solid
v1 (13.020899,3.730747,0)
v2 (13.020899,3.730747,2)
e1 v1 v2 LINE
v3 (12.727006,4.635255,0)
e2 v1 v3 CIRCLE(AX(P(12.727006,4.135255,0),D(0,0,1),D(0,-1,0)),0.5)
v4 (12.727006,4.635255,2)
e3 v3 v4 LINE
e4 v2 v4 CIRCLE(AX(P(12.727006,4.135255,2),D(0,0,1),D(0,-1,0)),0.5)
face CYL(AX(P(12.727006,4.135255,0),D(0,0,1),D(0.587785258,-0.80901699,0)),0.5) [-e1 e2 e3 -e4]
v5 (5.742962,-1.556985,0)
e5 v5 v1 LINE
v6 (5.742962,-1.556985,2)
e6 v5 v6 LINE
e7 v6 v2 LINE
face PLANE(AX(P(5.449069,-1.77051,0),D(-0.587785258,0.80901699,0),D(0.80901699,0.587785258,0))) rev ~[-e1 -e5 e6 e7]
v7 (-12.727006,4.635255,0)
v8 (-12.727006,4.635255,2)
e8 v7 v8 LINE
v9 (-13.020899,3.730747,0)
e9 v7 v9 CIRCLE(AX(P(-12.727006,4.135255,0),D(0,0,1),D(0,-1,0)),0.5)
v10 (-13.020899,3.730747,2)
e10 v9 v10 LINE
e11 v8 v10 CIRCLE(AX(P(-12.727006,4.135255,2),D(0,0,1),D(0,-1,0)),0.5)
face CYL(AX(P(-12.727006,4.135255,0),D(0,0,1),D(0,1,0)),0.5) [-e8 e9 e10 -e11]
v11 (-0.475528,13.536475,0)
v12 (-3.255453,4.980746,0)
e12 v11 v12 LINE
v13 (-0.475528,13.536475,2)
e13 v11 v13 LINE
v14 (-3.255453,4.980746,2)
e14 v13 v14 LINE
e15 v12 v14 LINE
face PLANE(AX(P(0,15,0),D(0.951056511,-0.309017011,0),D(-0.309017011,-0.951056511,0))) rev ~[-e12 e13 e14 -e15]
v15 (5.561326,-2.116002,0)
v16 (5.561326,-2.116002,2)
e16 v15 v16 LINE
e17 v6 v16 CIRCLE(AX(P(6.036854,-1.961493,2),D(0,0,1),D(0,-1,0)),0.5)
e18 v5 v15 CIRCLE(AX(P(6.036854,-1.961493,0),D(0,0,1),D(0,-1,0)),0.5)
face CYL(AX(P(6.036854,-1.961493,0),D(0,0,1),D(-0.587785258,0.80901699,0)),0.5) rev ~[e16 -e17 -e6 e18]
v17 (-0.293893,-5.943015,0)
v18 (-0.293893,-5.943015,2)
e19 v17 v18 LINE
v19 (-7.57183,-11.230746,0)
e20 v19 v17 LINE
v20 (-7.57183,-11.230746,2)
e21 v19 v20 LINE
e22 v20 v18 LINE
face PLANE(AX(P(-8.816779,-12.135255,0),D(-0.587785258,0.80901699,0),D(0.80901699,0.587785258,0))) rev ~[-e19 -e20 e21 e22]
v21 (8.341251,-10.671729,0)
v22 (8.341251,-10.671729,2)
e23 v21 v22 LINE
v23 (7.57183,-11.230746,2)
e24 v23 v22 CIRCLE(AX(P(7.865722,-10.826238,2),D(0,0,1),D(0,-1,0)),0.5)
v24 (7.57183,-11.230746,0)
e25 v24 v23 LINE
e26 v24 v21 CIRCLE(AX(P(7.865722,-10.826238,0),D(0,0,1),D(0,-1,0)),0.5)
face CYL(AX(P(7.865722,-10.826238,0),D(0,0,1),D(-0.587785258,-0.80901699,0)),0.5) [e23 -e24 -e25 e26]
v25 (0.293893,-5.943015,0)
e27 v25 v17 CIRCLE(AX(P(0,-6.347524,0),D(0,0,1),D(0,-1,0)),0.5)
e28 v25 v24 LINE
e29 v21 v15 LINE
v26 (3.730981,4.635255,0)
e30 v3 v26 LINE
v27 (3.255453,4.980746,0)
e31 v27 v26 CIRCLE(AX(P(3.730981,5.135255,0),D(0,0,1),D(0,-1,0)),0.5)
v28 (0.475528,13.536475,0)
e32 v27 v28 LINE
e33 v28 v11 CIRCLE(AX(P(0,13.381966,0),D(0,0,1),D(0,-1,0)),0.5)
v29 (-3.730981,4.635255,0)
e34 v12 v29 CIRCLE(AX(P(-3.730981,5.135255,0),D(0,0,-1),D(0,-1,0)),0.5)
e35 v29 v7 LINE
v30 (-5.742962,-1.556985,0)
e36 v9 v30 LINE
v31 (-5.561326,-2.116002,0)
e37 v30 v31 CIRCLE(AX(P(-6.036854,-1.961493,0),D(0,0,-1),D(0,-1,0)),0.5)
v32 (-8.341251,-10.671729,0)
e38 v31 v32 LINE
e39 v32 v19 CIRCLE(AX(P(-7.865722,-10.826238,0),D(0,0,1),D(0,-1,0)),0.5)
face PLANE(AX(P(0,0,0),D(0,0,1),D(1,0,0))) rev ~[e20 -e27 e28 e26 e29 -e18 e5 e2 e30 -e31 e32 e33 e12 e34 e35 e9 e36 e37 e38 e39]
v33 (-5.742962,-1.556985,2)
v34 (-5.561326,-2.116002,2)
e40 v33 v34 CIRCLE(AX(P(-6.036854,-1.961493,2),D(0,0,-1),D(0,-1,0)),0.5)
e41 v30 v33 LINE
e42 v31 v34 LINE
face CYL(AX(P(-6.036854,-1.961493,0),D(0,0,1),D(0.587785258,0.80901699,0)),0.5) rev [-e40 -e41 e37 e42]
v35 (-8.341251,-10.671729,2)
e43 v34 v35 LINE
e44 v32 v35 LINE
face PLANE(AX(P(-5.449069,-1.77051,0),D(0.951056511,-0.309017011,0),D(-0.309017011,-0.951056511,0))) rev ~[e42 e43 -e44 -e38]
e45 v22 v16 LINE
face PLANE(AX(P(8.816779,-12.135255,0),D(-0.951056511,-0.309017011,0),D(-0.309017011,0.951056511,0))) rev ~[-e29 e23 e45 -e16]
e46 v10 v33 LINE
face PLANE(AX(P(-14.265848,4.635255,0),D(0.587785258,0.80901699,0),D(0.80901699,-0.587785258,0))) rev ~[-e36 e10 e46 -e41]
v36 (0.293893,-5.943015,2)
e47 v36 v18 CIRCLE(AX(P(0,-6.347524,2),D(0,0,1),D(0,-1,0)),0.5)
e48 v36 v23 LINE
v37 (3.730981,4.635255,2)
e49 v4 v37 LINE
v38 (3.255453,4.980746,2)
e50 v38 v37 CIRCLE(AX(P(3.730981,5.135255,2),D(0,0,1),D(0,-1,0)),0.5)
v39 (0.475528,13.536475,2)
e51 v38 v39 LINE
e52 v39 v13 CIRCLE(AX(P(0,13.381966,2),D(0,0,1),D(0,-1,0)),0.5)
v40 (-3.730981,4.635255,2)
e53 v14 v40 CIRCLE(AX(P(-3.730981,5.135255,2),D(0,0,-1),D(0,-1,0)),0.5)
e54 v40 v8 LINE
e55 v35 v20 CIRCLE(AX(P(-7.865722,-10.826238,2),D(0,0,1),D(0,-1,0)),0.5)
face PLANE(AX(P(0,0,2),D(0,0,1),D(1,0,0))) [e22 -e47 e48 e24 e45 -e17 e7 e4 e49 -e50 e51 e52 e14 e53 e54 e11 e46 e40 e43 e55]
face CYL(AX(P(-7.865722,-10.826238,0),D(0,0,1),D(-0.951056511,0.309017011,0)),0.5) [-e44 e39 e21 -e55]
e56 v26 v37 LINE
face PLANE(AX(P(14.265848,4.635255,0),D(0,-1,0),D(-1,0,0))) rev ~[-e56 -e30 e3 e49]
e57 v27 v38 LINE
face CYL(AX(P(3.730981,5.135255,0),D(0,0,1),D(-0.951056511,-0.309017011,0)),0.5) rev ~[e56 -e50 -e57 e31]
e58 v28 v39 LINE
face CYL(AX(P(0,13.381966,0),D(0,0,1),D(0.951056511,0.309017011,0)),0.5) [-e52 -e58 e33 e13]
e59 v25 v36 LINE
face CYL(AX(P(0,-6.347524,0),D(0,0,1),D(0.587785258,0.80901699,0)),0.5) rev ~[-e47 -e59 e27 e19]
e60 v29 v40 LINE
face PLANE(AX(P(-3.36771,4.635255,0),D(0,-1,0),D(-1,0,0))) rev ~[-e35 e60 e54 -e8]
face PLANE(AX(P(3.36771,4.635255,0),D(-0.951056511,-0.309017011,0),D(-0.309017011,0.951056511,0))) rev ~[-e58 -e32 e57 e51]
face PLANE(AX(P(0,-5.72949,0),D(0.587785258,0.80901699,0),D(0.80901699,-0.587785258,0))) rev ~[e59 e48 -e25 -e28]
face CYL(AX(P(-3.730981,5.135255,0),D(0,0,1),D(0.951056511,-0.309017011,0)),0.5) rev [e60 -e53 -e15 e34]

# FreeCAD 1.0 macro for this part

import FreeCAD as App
import Part
import Sketcher

V = App.Vector
Q = App.Units.Quantity


def edges_at(feature, points):
    """Names of the edges that pass closest to the given points."""
    edges = feature.Shape.Edges
    near = lambda p: min(range(len(edges)), key=lambda i: edges[i].distToShape(Part.Vertex(*p))[0])
    return sorted({f"Edge{near(p) + 1}" for p in points})

doc = App.newDocument("Part")
body = doc.addObject("PartDesign::Body", "Body")

sketch1 = body.newObject("Sketcher::SketchObject", "Sketch")
sketch1.AttachmentSupport = (doc.getObject("XY_Plane"), [""])
sketch1.MapMode = "FlatFace"
sketch1.addGeometry([
    Part.LineSegment(V(3, 5, 0), V(0, 15, 0)),
    Part.LineSegment(V(0, 15, 0), V(-3, 5, 0)),
    Part.LineSegment(V(-3, 5, 0), V(-14, 5, 0)),
    Part.LineSegment(V(-14, 5, 0), V(-5, -2, 0)),
    Part.LineSegment(V(-5, -2, 0), V(-9, -12, 0)),
    Part.LineSegment(V(-9, -12, 0), V(0, -6, 0)),
    Part.LineSegment(V(0, -6, 0), V(9, -12, 0)),
    Part.LineSegment(V(9, -12, 0), V(5, -2, 0)),
    Part.LineSegment(V(5, -2, 0), V(14, 5, 0)),
    Part.LineSegment(V(14, 5, 0), V(3, 5, 0)),
], False)
sketch1.addConstraint([
    Sketcher.Constraint("Coincident", 0, 2, 1, 1),
    Sketcher.Constraint("Coincident", 1, 2, 2, 1),
    Sketcher.Constraint("Coincident", 2, 2, 3, 1),
    Sketcher.Constraint("Coincident", 3, 2, 4, 1),
    Sketcher.Constraint("Coincident", 4, 2, 5, 1),
    Sketcher.Constraint("Coincident", 5, 2, 6, 1),
    Sketcher.Constraint("Coincident", 6, 2, 7, 1),
    Sketcher.Constraint("Coincident", 7, 2, 8, 1),
    Sketcher.Constraint("Coincident", 8, 2, 9, 1),
    Sketcher.Constraint("Coincident", 9, 2, 0, 1),
    Sketcher.Constraint("Horizontal", 2),
    Sketcher.Constraint("Horizontal", 9),
    Sketcher.Constraint("Symmetric", 4, 2, 6, 2, -2),
    Sketcher.Constraint("Symmetric", 3, 2, 7, 2, -2),
    Sketcher.Constraint("Symmetric", 2, 2, 8, 2, -2),
    Sketcher.Constraint("PointOnObject", 0, 2, -2),
    Sketcher.Constraint("PointOnObject", 5, 2, -2),
    Sketcher.Constraint("Parallel", 1, 4),
    Sketcher.Constraint("Parallel", 3, 6),
    Sketcher.Constraint("Parallel", 0, 7),
    Sketcher.Constraint("Equal", 1, 3),
    Sketcher.Constraint("Equal", 3, 4),
    Sketcher.Constraint("Equal", 4, 5),
    Sketcher.Constraint("Angle", 0, Q("108.000001 deg")),
    Sketcher.Constraint("Angle", 3, Q("-36 deg")),
    Sketcher.Constraint("DistanceY", -1, 1, 0, 2, Q("15 mm")),
    Sketcher.Constraint("Distance", 3, Q("10.898138 mm")),
])
pad1 = body.newObject("PartDesign::Pad", "Pad")
pad1.Profile = sketch1
pad1.Length = 2
doc.recompute()

fillet = body.newObject("PartDesign::Fillet", "Fillet")
fillet.Base = (pad1, edges_at(pad1, [
    (0, 15, 1),
    (-14.266, 4.635, 1),
    (14.266, 4.635, 1),
    (8.817, -12.135, 1),
    (-8.817, -12.135, 1),
]))
fillet.Radius = 0.5
doc.recompute()

fillet2 = body.newObject("PartDesign::Fillet", "Fillet001")
fillet2.Base = (fillet, edges_at(fillet, [
    (0, -5.729, 1),
    (5.449, -1.771, 1),
    (3.368, 4.635, 1),
    (-3.368, 4.635, 1),
    (-5.449, -1.771, 1),
]))
fillet2.Radius = 0.5

doc.recompute()
